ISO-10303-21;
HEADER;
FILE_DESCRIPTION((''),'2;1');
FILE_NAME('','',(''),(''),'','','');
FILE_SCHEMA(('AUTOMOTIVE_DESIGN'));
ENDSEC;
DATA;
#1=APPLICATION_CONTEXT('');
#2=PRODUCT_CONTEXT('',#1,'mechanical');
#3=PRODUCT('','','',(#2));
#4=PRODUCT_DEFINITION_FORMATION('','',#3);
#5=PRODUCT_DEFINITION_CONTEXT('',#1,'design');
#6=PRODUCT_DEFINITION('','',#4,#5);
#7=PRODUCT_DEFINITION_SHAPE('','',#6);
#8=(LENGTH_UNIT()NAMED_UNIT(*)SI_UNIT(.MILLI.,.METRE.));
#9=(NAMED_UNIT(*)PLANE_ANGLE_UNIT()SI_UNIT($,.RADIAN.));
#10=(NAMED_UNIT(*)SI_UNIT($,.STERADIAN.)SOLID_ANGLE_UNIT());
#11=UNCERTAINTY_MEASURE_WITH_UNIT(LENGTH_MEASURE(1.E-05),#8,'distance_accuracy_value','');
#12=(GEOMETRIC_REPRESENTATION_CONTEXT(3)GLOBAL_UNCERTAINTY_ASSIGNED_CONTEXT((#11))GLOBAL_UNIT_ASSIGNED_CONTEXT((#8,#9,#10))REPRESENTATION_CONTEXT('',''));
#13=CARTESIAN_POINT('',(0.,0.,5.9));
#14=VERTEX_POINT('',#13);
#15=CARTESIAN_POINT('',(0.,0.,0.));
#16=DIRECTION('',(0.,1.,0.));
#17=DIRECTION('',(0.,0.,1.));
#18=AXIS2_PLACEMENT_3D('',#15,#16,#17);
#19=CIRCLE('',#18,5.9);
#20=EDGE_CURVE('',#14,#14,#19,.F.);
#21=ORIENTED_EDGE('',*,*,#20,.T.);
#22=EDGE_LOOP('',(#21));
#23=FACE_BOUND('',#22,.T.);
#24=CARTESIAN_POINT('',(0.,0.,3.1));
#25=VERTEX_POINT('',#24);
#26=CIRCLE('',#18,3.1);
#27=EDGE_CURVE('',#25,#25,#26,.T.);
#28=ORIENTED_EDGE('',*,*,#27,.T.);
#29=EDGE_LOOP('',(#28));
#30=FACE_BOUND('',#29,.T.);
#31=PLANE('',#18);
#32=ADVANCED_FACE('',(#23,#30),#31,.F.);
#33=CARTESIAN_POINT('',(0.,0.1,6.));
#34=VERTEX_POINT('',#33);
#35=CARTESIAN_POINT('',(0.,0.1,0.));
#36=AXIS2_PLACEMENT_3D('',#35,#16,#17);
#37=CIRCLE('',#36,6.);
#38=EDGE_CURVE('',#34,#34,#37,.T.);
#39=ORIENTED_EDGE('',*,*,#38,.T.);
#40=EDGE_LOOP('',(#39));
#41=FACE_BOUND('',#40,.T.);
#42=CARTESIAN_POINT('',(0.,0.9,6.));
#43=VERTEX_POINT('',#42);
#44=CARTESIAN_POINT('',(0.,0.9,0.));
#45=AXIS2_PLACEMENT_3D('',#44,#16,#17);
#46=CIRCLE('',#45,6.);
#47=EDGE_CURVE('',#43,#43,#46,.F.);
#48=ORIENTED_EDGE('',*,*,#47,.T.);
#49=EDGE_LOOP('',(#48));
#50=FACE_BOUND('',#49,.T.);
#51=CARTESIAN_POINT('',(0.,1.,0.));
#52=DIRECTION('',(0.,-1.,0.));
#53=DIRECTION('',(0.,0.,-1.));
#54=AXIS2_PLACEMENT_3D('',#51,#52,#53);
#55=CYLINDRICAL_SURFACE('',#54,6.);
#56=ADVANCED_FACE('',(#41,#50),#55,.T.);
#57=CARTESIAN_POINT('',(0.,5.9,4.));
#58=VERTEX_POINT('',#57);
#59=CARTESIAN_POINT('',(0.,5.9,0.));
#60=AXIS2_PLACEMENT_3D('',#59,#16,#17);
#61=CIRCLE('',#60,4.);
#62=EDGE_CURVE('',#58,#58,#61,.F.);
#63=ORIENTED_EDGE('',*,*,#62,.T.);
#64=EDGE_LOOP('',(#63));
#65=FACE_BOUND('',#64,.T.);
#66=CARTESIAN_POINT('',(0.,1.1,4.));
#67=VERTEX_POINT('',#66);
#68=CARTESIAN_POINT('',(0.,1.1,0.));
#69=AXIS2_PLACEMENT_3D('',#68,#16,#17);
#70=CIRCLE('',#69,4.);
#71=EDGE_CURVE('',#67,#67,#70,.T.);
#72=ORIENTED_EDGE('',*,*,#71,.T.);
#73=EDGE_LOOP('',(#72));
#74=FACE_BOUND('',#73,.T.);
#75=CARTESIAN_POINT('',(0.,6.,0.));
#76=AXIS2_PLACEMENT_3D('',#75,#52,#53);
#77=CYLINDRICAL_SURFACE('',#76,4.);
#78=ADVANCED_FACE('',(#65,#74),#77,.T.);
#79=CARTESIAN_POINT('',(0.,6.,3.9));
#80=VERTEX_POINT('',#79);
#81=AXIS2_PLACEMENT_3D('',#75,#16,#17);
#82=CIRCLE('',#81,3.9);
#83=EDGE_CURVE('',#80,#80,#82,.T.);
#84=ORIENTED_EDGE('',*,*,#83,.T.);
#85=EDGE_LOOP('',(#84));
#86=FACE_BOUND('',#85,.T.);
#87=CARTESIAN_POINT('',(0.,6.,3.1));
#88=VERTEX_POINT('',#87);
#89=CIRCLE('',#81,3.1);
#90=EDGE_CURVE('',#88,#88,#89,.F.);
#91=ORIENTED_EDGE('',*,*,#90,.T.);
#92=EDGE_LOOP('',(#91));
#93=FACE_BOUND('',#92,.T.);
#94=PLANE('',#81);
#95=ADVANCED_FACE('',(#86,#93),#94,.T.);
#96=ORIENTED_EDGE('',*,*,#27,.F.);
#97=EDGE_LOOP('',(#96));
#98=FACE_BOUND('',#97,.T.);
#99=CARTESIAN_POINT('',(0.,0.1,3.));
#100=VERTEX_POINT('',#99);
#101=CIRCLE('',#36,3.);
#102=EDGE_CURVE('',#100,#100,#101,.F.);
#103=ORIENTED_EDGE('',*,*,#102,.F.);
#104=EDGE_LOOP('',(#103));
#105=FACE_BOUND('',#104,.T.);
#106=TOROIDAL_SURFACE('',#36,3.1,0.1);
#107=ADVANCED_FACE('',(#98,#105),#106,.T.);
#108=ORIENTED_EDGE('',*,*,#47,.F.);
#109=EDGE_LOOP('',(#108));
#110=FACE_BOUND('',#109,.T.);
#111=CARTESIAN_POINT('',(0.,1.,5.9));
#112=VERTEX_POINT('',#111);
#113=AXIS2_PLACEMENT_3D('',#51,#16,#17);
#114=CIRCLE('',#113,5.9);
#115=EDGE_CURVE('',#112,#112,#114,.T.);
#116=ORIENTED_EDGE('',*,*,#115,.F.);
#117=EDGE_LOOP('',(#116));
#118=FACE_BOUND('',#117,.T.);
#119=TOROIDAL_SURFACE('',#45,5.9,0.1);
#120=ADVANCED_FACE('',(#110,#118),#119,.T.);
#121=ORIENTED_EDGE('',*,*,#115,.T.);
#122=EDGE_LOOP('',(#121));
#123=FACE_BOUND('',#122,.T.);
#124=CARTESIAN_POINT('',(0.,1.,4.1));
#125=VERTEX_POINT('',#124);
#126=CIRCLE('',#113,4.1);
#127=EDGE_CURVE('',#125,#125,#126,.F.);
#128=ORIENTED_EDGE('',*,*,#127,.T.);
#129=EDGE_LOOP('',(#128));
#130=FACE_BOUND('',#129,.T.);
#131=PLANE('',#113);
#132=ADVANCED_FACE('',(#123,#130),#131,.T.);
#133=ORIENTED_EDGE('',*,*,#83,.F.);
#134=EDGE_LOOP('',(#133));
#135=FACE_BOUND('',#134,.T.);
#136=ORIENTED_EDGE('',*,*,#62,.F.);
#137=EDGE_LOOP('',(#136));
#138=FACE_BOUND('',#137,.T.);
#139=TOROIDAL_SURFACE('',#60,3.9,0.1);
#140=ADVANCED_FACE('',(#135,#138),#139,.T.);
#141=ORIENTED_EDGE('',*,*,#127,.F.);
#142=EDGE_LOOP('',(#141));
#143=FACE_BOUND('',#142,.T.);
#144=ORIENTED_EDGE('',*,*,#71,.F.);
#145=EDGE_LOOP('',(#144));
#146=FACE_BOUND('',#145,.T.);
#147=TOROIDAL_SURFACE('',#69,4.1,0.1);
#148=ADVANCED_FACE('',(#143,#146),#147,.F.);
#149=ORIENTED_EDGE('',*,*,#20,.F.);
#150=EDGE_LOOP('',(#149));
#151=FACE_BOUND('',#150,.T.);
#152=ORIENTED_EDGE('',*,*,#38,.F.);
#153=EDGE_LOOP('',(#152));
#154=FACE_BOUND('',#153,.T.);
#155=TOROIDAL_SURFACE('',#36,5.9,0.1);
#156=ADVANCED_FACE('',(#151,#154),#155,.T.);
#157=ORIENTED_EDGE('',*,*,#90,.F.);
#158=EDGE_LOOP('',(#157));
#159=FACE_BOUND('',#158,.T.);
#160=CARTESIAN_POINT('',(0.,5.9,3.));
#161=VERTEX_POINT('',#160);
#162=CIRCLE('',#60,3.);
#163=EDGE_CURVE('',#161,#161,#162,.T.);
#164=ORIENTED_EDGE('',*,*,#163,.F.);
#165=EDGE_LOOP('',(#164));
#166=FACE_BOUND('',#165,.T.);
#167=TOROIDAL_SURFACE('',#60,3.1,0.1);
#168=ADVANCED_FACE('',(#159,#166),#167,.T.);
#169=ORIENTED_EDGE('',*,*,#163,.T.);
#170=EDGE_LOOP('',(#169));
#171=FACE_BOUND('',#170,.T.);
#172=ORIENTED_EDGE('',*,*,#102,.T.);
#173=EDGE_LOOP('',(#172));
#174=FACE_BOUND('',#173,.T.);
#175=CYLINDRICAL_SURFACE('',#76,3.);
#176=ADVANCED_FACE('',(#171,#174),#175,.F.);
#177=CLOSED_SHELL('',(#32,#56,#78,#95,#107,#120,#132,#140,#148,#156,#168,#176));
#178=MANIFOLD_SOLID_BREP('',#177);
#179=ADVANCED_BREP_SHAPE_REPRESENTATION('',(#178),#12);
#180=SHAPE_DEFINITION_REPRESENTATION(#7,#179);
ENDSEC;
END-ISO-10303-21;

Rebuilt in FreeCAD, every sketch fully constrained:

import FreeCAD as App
import Part
import Sketcher
from FreeCAD import Vector
Q = App.Units.Quantity


def edges_at(feature, points):
    """Names of the edges that pass closest to the given points."""
    edges = feature.Shape.Edges
    near = lambda p: min(range(len(edges)), key=lambda i: edges[i].distToShape(Part.Vertex(*p))[0])
    return sorted({f"Edge{near(p) + 1}" for p in points})

doc = App.newDocument("Part")
params = doc.addObject("Spreadsheet::Sheet", "Params")
for row, (alias, value) in enumerate([
    ("sketch1_diameter", "8 mm"),
    ("sketch1_diameter2", "6 mm"),
    ("pad1_length", "6 mm"),
    ("sketch2_diameter", "12 mm"),
    ("sketch2_diameter2", "8 mm"),
    ("pad2_length", "1 mm"),
    ("fillet_radius", "0.1 mm"),
], start=1):
    params.set(f"A{row}", alias)
    params.set(f"B{row}", "=" + value)
    params.setAlias(f"B{row}", alias)

body = doc.addObject("PartDesign::Body", "Body")

sketch1 = doc.addObject("Sketcher::SketchObject", "Sketch")
body.addObject(sketch1)
sketch1.AttachmentSupport = (doc.XZ_Plane, [""])
sketch1.MapMode = "FlatFace"
sketch1.addGeometry([
    Part.Circle(Vector(0, 0, 0), Vector(0, 0, 1), 4),
    Part.Circle(Vector(0, 0, 0), Vector(0, 0, 1), 3),
], False)
sketch1.addConstraint([
    Sketcher.Constraint("Coincident", 0, 3, -1, 1),
    Sketcher.Constraint("Coincident", 1, 3, -1, 1),
    Sketcher.Constraint("Diameter", 0, Q("8 mm")),
    Sketcher.Constraint("Diameter", 1, Q("6 mm")),
])
sketch1.setExpression("Constraints[2]", "Params.sketch1_diameter")
sketch1.setExpression("Constraints[3]", "Params.sketch1_diameter2")
pad1 = doc.addObject("PartDesign::Pad", "Pad")
body.addObject(pad1)
pad1.Profile = sketch1
pad1.setExpression("Length", "Params.pad1_length")
pad1.Reversed = True

sketch2 = doc.addObject("Sketcher::SketchObject", "Sketch001")
body.addObject(sketch2)
sketch2.AttachmentSupport = (doc.XZ_Plane, [""])
sketch2.MapMode = "FlatFace"
sketch2.addGeometry([
    Part.Circle(Vector(0, 0, 0), Vector(0, 0, 1), 6),
    Part.Circle(Vector(0, 0, 0), Vector(0, 0, 1), 4),
], False)
sketch2.addConstraint([
    Sketcher.Constraint("Coincident", 0, 3, -1, 1),
    Sketcher.Constraint("Coincident", 1, 3, -1, 1),
    Sketcher.Constraint("Diameter", 0, Q("12 mm")),
    Sketcher.Constraint("Diameter", 1, Q("8 mm")),
])
sketch2.setExpression("Constraints[2]", "Params.sketch2_diameter")
sketch2.setExpression("Constraints[3]", "Params.sketch2_diameter2")
pad2 = doc.addObject("PartDesign::Pad", "Pad001")
body.addObject(pad2)
pad2.Profile = sketch2
pad2.setExpression("Length", "Params.pad2_length")
pad2.Reversed = True
doc.recompute()

fillet = doc.addObject("PartDesign::Fillet", "Fillet")
body.addObject(fillet)
fillet.Base = (pad2, edges_at(pad2, [
    (0, 0, -6),
    (0, 1, -4),
    (0, 6, -4),
    (0, 0, -3),
    (0, 6, -3),
    (0, 1, -6),
]))
fillet.setExpression("Radius", "Params.fillet_radius")

doc.recompute()
